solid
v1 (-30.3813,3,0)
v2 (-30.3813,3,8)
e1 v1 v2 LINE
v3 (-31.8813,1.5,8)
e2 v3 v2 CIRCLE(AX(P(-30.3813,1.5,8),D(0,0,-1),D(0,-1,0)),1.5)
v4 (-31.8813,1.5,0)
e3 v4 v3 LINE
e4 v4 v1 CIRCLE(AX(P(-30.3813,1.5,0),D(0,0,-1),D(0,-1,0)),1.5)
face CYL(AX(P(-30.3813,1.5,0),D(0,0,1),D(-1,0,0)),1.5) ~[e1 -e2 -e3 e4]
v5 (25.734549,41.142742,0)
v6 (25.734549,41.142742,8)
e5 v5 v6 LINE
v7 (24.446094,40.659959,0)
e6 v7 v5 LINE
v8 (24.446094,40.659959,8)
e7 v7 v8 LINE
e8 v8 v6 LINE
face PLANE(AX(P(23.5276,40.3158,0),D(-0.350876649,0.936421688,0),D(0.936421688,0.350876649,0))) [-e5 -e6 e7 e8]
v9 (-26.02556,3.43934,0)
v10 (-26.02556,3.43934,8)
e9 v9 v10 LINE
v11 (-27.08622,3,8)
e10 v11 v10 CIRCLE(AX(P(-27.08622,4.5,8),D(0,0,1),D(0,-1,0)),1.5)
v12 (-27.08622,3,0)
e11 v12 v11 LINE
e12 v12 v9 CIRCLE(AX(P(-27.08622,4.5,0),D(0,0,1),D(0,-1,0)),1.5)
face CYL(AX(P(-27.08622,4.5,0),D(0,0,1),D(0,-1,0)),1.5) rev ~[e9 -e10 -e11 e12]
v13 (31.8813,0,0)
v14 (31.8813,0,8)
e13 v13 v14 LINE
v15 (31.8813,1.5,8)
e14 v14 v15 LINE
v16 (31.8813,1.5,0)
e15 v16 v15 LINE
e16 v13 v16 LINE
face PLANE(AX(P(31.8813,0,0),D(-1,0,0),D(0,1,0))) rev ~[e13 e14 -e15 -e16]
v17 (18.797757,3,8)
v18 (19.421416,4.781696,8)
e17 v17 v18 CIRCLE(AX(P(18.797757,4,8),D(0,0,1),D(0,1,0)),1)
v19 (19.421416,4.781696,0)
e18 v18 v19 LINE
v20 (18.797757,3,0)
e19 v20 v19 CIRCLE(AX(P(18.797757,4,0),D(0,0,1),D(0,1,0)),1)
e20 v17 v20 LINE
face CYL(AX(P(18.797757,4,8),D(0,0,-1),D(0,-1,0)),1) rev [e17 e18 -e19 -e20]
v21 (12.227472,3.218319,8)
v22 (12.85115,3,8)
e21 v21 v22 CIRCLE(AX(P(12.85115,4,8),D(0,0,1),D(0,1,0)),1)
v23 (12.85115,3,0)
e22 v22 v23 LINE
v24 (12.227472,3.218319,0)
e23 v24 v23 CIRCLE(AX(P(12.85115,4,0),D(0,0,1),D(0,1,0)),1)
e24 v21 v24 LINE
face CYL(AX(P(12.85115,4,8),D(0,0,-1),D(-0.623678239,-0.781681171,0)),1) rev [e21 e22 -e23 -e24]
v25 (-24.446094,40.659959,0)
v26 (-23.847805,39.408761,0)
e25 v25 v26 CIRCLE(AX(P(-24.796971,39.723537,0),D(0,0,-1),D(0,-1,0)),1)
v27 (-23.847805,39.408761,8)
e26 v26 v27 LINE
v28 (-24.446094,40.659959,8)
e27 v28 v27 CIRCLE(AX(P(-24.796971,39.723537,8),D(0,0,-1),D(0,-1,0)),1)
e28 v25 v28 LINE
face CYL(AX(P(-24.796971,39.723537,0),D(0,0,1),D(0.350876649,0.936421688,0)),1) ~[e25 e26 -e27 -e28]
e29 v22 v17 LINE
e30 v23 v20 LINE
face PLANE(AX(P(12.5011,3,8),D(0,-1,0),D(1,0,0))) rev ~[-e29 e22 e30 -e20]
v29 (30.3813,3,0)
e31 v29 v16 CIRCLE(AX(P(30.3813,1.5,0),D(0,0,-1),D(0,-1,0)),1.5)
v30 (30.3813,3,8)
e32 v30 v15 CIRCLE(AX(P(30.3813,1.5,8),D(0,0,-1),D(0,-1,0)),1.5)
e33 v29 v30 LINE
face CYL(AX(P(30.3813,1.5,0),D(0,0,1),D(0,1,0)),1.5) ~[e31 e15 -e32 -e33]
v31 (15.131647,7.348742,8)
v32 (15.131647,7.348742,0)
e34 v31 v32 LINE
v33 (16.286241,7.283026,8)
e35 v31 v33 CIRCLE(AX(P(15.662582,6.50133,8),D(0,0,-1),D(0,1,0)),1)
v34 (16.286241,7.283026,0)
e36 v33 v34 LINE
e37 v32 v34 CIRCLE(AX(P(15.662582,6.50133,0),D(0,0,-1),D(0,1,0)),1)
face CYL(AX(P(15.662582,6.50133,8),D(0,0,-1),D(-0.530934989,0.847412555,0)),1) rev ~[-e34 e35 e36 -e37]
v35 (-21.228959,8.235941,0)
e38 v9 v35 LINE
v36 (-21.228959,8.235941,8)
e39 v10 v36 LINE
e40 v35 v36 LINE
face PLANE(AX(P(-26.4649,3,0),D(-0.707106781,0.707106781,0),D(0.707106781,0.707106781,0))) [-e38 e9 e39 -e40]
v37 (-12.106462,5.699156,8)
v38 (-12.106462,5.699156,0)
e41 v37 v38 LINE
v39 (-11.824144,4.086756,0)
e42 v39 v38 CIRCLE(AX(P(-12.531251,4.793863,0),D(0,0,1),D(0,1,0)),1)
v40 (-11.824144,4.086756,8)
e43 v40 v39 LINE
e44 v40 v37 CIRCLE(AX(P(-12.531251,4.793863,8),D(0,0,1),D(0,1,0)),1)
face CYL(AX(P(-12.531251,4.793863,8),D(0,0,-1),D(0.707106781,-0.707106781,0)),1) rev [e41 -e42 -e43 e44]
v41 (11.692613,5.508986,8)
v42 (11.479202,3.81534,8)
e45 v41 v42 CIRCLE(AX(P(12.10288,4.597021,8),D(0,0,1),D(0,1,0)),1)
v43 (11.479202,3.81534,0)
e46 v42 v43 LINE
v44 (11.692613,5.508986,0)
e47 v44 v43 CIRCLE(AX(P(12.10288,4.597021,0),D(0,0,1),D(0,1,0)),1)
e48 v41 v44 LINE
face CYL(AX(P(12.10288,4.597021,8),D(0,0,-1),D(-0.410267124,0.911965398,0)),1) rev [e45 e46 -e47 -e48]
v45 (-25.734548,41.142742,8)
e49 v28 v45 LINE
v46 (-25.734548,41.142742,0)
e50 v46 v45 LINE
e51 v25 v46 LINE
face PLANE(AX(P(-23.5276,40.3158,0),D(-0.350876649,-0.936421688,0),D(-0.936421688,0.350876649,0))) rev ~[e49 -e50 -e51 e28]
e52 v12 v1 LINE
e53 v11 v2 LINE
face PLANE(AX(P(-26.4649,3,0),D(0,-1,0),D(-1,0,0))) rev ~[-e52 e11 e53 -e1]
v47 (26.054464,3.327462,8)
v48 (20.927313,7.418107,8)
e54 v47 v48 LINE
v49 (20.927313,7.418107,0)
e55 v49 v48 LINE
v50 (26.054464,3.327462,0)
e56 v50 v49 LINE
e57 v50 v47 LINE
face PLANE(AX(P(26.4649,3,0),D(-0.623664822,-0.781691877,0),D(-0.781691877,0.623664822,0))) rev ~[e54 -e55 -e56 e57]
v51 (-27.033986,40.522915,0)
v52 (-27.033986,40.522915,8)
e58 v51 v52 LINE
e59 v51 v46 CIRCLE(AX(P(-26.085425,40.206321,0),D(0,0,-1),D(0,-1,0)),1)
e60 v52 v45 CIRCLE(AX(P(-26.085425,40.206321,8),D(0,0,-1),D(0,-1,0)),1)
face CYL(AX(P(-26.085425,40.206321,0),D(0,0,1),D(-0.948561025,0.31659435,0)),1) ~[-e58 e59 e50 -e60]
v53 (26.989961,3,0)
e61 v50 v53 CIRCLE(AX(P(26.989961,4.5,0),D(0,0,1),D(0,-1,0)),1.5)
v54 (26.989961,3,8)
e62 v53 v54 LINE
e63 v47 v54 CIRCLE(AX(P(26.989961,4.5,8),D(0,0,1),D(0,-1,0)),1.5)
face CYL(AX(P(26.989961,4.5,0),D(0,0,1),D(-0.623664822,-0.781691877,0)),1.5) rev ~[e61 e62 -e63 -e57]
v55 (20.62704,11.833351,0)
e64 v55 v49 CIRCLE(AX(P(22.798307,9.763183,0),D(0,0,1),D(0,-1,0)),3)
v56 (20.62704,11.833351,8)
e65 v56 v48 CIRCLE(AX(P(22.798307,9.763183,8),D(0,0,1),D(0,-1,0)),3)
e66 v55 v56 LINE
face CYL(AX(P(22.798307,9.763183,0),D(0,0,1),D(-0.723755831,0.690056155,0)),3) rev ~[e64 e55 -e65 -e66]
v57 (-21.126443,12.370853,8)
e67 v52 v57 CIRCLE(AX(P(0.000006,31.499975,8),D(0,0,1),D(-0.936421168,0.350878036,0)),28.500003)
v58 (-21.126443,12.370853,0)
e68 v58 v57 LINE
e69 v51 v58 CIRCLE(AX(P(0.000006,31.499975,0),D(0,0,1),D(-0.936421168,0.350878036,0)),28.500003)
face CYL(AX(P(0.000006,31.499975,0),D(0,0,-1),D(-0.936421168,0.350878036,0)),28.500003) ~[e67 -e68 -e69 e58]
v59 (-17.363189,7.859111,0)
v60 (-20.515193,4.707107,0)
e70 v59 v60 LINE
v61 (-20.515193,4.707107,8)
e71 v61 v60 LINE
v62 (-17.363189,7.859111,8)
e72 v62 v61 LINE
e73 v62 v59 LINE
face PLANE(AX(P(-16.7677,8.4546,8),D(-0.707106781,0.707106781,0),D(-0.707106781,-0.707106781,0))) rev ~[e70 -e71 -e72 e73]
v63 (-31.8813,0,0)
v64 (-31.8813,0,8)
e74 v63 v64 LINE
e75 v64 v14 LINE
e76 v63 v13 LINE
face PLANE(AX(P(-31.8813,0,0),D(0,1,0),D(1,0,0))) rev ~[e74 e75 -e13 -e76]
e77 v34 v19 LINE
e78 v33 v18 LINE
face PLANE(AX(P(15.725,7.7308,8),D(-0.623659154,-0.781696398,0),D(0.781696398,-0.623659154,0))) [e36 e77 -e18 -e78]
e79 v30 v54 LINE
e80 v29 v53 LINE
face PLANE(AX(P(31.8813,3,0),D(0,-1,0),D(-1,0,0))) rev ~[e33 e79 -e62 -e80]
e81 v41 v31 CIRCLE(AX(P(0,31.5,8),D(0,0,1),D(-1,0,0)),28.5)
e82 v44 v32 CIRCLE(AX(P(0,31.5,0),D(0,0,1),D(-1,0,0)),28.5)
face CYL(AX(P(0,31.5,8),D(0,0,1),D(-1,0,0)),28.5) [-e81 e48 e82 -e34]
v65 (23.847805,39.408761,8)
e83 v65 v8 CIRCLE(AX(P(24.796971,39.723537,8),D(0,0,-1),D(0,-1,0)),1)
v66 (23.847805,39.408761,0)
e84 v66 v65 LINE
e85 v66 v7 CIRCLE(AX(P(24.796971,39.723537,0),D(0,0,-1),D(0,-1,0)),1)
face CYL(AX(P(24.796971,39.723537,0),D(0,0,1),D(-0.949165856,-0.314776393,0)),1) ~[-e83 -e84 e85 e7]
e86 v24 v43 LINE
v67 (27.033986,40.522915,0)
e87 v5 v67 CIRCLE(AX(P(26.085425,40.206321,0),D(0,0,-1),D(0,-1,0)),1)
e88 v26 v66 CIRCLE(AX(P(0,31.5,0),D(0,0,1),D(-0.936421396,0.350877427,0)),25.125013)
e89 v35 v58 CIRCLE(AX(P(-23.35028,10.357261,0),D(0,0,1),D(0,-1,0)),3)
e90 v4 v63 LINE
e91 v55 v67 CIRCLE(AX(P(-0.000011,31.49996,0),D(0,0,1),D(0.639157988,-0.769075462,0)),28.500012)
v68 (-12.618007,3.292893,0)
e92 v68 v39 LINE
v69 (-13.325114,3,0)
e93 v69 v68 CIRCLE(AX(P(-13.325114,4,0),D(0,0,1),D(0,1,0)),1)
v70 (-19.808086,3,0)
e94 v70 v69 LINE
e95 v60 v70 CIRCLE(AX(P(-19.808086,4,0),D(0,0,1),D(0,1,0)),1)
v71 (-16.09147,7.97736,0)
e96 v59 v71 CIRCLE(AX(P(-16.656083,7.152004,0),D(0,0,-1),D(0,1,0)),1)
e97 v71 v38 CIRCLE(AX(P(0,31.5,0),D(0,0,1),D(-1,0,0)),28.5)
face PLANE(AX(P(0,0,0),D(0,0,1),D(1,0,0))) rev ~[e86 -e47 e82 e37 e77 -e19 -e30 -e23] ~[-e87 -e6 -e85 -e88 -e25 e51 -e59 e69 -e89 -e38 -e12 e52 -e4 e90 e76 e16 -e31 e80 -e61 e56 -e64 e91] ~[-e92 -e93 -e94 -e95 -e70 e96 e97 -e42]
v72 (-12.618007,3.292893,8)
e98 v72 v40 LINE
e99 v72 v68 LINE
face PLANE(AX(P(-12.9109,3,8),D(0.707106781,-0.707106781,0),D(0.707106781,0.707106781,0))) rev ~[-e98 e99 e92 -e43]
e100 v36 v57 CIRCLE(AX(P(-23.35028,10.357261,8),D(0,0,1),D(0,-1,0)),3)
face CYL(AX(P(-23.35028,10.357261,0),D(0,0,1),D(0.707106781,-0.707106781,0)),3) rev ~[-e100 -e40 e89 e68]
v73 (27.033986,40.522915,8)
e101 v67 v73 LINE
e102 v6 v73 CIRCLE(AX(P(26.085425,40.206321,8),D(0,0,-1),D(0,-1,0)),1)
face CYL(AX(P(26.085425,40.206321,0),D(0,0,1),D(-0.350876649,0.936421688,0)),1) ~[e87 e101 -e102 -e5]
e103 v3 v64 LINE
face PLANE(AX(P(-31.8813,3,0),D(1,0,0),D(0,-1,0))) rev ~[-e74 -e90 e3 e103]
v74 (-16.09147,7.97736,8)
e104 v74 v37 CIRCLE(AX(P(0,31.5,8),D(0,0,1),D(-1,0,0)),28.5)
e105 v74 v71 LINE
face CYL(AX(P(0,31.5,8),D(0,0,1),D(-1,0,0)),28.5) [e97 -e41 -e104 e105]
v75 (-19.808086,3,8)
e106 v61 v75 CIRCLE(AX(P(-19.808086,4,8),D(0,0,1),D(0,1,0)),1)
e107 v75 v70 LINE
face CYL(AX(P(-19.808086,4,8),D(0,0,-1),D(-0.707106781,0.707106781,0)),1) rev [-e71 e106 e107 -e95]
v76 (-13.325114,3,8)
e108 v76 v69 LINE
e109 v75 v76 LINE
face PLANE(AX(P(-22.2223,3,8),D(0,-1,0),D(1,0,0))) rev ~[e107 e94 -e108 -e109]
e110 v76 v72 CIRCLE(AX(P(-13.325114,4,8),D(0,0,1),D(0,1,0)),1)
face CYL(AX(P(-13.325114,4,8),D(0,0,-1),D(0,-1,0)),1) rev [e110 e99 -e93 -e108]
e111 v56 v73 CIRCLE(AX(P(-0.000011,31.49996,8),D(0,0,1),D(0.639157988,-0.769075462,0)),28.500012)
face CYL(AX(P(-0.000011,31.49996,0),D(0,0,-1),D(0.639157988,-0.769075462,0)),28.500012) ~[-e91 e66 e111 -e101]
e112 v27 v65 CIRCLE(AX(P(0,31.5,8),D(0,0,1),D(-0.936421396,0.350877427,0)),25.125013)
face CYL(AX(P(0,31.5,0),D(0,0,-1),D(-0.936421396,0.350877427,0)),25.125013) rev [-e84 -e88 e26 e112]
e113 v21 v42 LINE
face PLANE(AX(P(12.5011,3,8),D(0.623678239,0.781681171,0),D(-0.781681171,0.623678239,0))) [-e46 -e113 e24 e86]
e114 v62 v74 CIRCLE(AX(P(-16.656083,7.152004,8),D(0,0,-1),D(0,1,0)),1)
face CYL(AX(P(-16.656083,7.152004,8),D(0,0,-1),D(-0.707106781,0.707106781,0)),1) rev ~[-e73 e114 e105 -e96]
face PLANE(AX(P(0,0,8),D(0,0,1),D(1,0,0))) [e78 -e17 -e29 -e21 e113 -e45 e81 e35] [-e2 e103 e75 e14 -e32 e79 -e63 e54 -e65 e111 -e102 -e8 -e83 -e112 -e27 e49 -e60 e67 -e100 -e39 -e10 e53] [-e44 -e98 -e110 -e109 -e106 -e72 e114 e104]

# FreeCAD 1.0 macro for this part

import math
import FreeCAD as App
import Part
import Sketcher

V = App.Vector
Q = App.Units.Quantity


def edges_at(feature, points):
    """Names of the edges that pass closest to the given points."""
    edges = feature.Shape.Edges
    near = lambda p: min(range(len(edges)), key=lambda i: edges[i].distToShape(Part.Vertex(*p))[0])
    return sorted({f"Edge{near(p) + 1}" for p in points})

doc = App.newDocument("Part")
params = doc.addObject("Spreadsheet::Sheet", "Params")
for row, (alias, value) in enumerate([
    ("sketch1_height", "3 mm"),
    ("sketch1_height2", "10 mm"),
    ("sketch1_radius", "28.5 mm"),
    ("pad1_length", "8 mm"),
    ("fillet_radius", "1 mm"),
    ("sketch2_length", "3 mm"),
    ("sketch2_radius", "28.5 mm"),
    ("pocket1_length", "8 mm"),
    ("fillet2_radius", "3 mm"),
    ("fillet3_radius", "1.5 mm"),
    ("fillet4_radius", "1 mm"),
    ("fillet5_radius", "1 mm"),
], start=1):
    params.set(f"A{row}", alias)
    params.set(f"B{row}", "=" + value)
    params.setAlias(f"B{row}", alias)

body = doc.addObject("PartDesign::Body", "Body")

# Sketch on XY plane
sketch1 = body.newObject("Sketcher::SketchObject", "Sketch")
sketch1.AttachmentSupport = (doc.getObject("XY_Plane"), [""])
sketch1.MapMode = "FlatFace"
sketch1.addGeometry([
    Part.LineSegment(V(-31.9, 3, 0), V(-31.9, 0, 0)),  # 0
    Part.LineSegment(V(-31.9, 0, 0), V(31.9, 0, 0)),  # 1
    Part.LineSegment(V(31.9, 0, 0), V(31.9, 3, 0)),  # 2
    Part.LineSegment(V(31.9, 3, 0), V(26.5, 3, 0)),  # 3
    Part.LineSegment(V(26.5, 3, 0), V(18.2, 9.6, 0)),  # 4
    Part.ArcOfCircle(Part.Circle(V(0, 31.5, 0), V(0, 0, 1), 28.5), math.radians(-50), math.radians(21)),  # 5
    Part.LineSegment(V(26.7, 41.5, 0), V(23.5, 40.3, 0)),  # 6
    Part.ArcOfCircle(Part.Circle(V(0, 31.5, 0), V(0, 0, 1), 25.1), math.radians(159), math.radians(381)),  # 7
    Part.LineSegment(V(-23.5, 40.3, 0), V(-26.7, 41.5, 0)),  # 8
    Part.ArcOfCircle(Part.Circle(V(0, 31.5, 0), V(0, 0, 1), 28.5), math.radians(159), math.radians(228)),  # 9
    Part.LineSegment(V(-19.1, 10.4, 0), V(-26.5, 3, 0)),  # 10
    Part.LineSegment(V(-26.5, 3, 0), V(-31.9, 3, 0)),  # 11
], False)
sketch1.addConstraint([
    Sketcher.Constraint("Coincident", 0, 2, 1, 1),
    Sketcher.Constraint("Coincident", 1, 2, 2, 1),
    Sketcher.Constraint("Coincident", 2, 2, 3, 1),
    Sketcher.Constraint("Coincident", 3, 2, 4, 1),
    Sketcher.Constraint("Coincident", 4, 2, 5, 1),
    Sketcher.Constraint("Coincident", 5, 2, 6, 1),
    Sketcher.Constraint("Coincident", 6, 2, 7, 2),
    Sketcher.Constraint("Coincident", 7, 1, 8, 1),
    Sketcher.Constraint("Coincident", 8, 2, 9, 1),
    Sketcher.Constraint("Coincident", 9, 2, 10, 1),
    Sketcher.Constraint("Coincident", 10, 2, 11, 1),
    Sketcher.Constraint("Coincident", 11, 2, 0, 1),
    Sketcher.Constraint("Vertical", 0),
    Sketcher.Constraint("Horizontal", 1),
    Sketcher.Constraint("Vertical", 2),
    Sketcher.Constraint("Horizontal", 3),
    Sketcher.Constraint("Horizontal", 11),
    Sketcher.Constraint("Coincident", 7, 3, 5, 3),
    Sketcher.Constraint("Coincident", 9, 3, 5, 3),
    Sketcher.Constraint("Equal", 5, 9),
    Sketcher.Constraint("Symmetric", 0, 2, 1, 2, -1, 1),
    Sketcher.Constraint("Symmetric", 6, 2, 7, 1, -2),
    Sketcher.Constraint("Symmetric", 3, 2, 10, 2, -2),
    Sketcher.Constraint("Horizontal", 5, 2, 8, 2),
    Sketcher.Constraint("DistanceY", 0, 2, 0, 1, 3.0),
    Sketcher.Constraint("Angle", 10, Q("-135 deg")),
    Sketcher.Constraint("Radius", 7, 25.125),
    Sketcher.Constraint("DistanceY", 5, 3, 5, 2, 10.0),
    Sketcher.Constraint("DistanceY", -1, 1, 5, 3, 31.5),
    Sketcher.Constraint("Radius", 5, 28.5),
    Sketcher.Constraint("Angle", 6, Q("-159.459 deg")),
    Sketcher.Constraint("DistanceX", 1, 1, 1, 2, 63.7626),
    Sketcher.Constraint("DistanceX", 3, 2, 3, 1, 5.4164),
    Sketcher.Constraint("DistanceX", -1, 1, 4, 2, 18.216),
])
sketch1.setExpression("Constraints[24]", "Params.sketch1_height")
sketch1.setExpression("Constraints[27]", "Params.sketch1_height2")
sketch1.setExpression("Constraints[29]", "Params.sketch1_radius")
pad1 = body.newObject("PartDesign::Pad", "Pad")
pad1.Profile = sketch1
pad1.setExpression("Length", "Params.pad1_length")
doc.recompute()

fillet = body.newObject("PartDesign::Fillet", "Fillet")
fillet.Base = (pad1, edges_at(pad1, [
    (-23.528, 40.316, 4),
    (-26.688, 41.5, 4),
    (26.688, 41.5, 4),
    (23.528, 40.316, 4),
]))
fillet.setExpression("Radius", "Params.fillet_radius")

# Sketch on XY plane
sketch2 = body.newObject("Sketcher::SketchObject", "Sketch001")
sketch2.AttachmentSupport = (doc.getObject("XY_Plane"), [""])
sketch2.MapMode = "FlatFace"
sketch2.AttachmentOffset = App.Placement(V(0, 0, 8), App.Rotation())
sketch2.addGeometry([
    Part.LineSegment(V(21.7, 3, 0), V(15.7, 7.7, 0)),  # 0
    Part.ArcOfCircle(Part.Circle(V(0, 31.5, 0), V(0, 0, 1), 28.5), math.radians(-69.12), math.radians(-56.51)),  # 1
    Part.LineSegment(V(10.2, 4.9, 0), V(12.5, 3, 0)),  # 2
    Part.LineSegment(V(12.5, 3, 0), V(21.7, 3, 0)),  # 3
    Part.ArcOfCircle(Part.Circle(V(0, 31.5, 0), V(0, 0, 1), 28.5), math.radians(-126.04), math.radians(-112.25)),  # 4
    Part.LineSegment(V(-16.8, 8.5, 0), V(-22.2, 3, 0)),  # 5
    Part.LineSegment(V(-22.2, 3, 0), V(-12.9, 3, 0)),  # 6
    Part.LineSegment(V(-12.9, 3, 0), V(-10.8, 5.1, 0)),  # 7
], False)
sketch2.addConstraint([
    Sketcher.Constraint("Coincident", 0, 2, 1, 2),
    Sketcher.Constraint("Coincident", 1, 1, 2, 1),
    Sketcher.Constraint("Coincident", 2, 2, 3, 1),
    Sketcher.Constraint("Coincident", 3, 2, 0, 1),
    Sketcher.Constraint("Coincident", 4, 1, 5, 1),
    Sketcher.Constraint("Coincident", 5, 2, 6, 1),
    Sketcher.Constraint("Coincident", 6, 2, 7, 1),
    Sketcher.Constraint("Coincident", 7, 2, 4, 2),
    Sketcher.Constraint("Horizontal", 3),
    Sketcher.Constraint("Horizontal", 6),
    Sketcher.Constraint("Coincident", 4, 3, 1, 3),
    Sketcher.Constraint("Equal", 1, 4),
    Sketcher.Constraint("PointOnObject", 1, 3, -2),
    Sketcher.Constraint("Parallel", 0, 2),
    Sketcher.Constraint("Parallel", 5, 7),
    Sketcher.Constraint("Horizontal", 3, 2, 5, 2),
    Sketcher.Constraint("Equal", 2, 7),
    Sketcher.Constraint("Distance", 2, 3.0),
    Sketcher.Constraint("DistanceY", -1, 1, 2, 2, 3.0),
    Sketcher.Constraint("Radius", 1, 28.5),
    Sketcher.Constraint("Angle", 5, Q("-135 deg")),
    Sketcher.Constraint("DistanceY", -1, 1, 1, 3, 31.5),
    Sketcher.Constraint("Distance", 5, 7.714),
    Sketcher.Constraint("DistanceX", 3, 1, 3, 2, 9.1535),
    Sketcher.Constraint("DistanceX", -1, 1, 0, 2, 15.725),
])
sketch2.setExpression("Constraints[17]", "Params.sketch2_length")
sketch2.setExpression("Constraints[19]", "Params.sketch2_radius")
pocket1 = body.newObject("PartDesign::Pocket", "Pocket")
pocket1.Profile = sketch2
pocket1.setExpression("Length", "Params.pocket1_length")
doc.recompute()

fillet2 = body.newObject("PartDesign::Fillet", "Fillet001")
fillet2.Base = (pocket1, edges_at(pocket1, [(-19.109, 10.356, 4), (18.216, 9.581, 4)]))
fillet2.setExpression("Radius", "Params.fillet2_radius")
doc.recompute()

fillet3 = body.newObject("PartDesign::Fillet", "Fillet002")
fillet3.Base = (fillet2, edges_at(fillet2, [
    (31.881, 3, 4),
    (26.465, 3, 4),
    (-26.465, 3, 4),
    (-31.881, 3, 4),
]))
fillet3.setExpression("Radius", "Params.fillet3_radius")
doc.recompute()

fillet4 = body.newObject("PartDesign::Fillet", "Fillet003")
fillet4.Base = (fillet3, edges_at(fillet3, [
    (21.655, 3, 4),
    (15.725, 7.731, 4),
    (10.156, 4.871, 4),
    (12.501, 3, 4),
]))
fillet4.setExpression("Radius", "Params.fillet4_radius")
doc.recompute()

fillet5 = body.newObject("PartDesign::Fillet", "Fillet004")
fillet5.Base = (fillet4, edges_at(fillet4, [
    (-12.911, 3, 4),
    (-10.79, 5.121, 4),
    (-16.768, 8.455, 4),
    (-22.222, 3, 4),
]))
fillet5.setExpression("Radius", "Params.fillet5_radius")

doc.recompute()
